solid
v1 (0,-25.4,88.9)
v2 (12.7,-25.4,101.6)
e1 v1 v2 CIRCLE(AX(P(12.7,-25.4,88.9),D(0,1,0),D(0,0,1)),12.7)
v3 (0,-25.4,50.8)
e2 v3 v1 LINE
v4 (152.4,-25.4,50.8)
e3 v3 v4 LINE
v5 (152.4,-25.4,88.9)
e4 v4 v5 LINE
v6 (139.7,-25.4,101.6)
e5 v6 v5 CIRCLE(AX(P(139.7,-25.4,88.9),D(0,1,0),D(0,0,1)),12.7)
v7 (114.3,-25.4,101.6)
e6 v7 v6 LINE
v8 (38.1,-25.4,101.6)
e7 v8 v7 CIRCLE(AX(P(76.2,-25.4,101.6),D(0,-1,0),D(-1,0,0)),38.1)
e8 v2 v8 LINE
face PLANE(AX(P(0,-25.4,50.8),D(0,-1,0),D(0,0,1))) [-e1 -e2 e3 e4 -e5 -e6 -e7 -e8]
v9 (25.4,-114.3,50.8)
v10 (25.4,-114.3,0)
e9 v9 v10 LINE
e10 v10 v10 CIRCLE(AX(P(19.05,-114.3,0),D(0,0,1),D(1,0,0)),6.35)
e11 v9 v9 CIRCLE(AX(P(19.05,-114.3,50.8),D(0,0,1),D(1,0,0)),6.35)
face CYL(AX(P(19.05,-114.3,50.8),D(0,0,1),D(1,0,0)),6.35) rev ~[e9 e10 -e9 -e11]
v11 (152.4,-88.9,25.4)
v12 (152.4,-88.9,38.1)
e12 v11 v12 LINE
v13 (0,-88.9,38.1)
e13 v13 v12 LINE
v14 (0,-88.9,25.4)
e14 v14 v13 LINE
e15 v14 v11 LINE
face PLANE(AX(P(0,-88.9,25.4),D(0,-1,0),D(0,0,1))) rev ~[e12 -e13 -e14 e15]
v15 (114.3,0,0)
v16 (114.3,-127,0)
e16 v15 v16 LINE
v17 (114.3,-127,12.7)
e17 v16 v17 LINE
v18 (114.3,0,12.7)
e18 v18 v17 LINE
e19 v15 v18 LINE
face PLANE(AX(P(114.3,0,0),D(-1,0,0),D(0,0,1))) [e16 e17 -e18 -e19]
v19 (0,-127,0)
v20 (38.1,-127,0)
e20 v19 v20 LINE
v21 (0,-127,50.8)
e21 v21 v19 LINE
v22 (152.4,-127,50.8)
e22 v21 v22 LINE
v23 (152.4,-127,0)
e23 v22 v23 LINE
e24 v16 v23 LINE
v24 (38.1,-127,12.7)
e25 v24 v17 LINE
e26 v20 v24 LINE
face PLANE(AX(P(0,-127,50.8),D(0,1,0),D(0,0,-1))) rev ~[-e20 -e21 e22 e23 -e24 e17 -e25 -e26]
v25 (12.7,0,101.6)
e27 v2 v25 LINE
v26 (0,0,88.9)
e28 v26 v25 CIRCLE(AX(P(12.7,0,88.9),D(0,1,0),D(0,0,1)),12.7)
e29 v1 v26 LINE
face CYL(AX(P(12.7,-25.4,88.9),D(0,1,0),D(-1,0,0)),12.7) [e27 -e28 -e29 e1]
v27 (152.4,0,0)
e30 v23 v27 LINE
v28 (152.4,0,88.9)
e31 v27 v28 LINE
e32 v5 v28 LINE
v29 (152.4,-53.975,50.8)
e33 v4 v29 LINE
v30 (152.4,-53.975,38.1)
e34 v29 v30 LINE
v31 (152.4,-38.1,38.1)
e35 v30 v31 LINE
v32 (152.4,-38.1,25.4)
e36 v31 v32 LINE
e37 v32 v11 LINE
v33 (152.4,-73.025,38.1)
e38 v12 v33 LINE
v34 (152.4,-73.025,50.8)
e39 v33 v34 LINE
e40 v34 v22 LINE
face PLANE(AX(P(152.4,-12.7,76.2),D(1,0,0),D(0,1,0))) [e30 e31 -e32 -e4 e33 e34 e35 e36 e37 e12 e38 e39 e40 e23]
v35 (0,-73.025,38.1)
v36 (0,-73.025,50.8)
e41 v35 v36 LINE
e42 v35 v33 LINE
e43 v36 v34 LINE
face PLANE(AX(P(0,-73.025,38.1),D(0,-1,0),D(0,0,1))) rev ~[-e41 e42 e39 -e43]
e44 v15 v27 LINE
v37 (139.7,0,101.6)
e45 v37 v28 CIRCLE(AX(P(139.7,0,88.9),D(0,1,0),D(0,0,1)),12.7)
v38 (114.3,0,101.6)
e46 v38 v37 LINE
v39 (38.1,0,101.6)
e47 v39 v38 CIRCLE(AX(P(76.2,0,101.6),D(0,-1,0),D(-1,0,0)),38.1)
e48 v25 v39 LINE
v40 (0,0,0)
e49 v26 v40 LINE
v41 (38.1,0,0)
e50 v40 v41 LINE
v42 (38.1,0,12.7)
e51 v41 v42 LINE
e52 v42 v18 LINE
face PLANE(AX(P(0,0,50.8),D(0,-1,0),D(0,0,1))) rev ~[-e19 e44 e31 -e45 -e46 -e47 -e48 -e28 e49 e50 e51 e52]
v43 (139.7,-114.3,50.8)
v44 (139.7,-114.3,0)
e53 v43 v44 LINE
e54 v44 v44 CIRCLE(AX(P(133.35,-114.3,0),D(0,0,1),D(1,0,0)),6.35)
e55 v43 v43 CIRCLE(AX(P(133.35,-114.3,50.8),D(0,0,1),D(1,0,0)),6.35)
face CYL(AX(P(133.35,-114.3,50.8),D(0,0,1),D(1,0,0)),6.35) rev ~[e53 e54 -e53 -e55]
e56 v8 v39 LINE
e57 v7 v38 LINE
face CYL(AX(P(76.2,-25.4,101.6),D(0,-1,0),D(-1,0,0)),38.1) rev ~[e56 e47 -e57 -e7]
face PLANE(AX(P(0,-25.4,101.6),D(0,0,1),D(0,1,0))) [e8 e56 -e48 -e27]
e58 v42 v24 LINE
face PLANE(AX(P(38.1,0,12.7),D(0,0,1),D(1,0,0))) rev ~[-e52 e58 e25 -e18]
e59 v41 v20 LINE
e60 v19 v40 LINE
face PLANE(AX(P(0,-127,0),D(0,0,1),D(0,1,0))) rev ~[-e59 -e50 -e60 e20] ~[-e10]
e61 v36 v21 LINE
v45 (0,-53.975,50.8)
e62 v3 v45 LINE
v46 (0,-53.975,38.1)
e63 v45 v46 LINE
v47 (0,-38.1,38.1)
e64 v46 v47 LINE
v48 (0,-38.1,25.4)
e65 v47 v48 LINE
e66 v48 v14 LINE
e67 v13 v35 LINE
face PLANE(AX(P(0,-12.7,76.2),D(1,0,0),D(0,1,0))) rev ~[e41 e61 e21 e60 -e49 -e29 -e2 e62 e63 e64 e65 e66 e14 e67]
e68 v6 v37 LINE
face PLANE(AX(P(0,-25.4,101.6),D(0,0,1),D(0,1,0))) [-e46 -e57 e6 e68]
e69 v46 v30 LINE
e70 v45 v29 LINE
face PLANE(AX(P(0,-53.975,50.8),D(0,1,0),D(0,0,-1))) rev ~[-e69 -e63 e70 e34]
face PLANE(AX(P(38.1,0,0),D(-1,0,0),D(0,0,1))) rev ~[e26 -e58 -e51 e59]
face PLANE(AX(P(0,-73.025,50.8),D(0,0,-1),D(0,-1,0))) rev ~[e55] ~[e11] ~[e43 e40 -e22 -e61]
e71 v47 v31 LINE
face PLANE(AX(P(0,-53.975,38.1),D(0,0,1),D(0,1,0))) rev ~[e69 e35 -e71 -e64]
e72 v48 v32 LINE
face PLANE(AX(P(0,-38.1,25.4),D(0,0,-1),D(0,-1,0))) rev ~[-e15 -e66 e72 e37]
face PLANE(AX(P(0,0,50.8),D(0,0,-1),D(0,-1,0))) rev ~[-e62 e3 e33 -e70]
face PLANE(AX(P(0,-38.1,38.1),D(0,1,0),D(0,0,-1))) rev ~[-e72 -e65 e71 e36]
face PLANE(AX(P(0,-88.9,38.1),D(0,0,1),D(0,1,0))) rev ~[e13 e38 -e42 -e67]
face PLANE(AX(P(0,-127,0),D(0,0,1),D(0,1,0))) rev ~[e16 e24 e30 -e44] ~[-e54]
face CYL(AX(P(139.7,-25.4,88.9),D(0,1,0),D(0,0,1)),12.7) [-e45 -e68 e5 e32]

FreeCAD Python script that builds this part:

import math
import FreeCAD as App
import Part
import Sketcher

V = App.Vector
Q = App.Units.Quantity


def edges_at(feature, points):
    """Names of the edges that pass closest to the given points."""
    edges = feature.Shape.Edges
    near = lambda p: min(range(len(edges)), key=lambda i: edges[i].distToShape(Part.Vertex(*p))[0])
    return sorted({f"Edge{near(p) + 1}" for p in points})

doc = App.newDocument("Part")
body = doc.addObject("PartDesign::Body", "Body")

# Sketch on YZ plane
sketch1 = body.newObject("Sketcher::SketchObject", "Sketch")
sketch1.AttachmentSupport = (doc.getObject("YZ_Plane"), [""])
sketch1.MapMode = "FlatFace"
sketch1.addGeometry(Part.LineSegment(V(-127, 0, 0), V(0, 0, 0)), False)
sketch1.addGeometry(Part.LineSegment(V(0, 0, 0), V(0, 51, 0)), False)
sketch1.addGeometry(Part.LineSegment(V(0, 51, 0), V(-54, 51, 0)), False)
sketch1.addGeometry(Part.LineSegment(V(-54, 51, 0), V(-54, 38, 0)), False)
sketch1.addGeometry(Part.LineSegment(V(-54, 38, 0), V(-38, 38, 0)), False)
sketch1.addGeometry(Part.LineSegment(V(-38, 38, 0), V(-38, 25, 0)), False)
sketch1.addGeometry(Part.LineSegment(V(-38, 25, 0), V(-89, 25, 0)), False)
sketch1.addGeometry(Part.LineSegment(V(-89, 25, 0), V(-89, 38, 0)), False)
sketch1.addGeometry(Part.LineSegment(V(-89, 38, 0), V(-73, 38, 0)), False)
sketch1.addGeometry(Part.LineSegment(V(-73, 38, 0), V(-73, 51, 0)), False)
sketch1.addGeometry(Part.LineSegment(V(-73, 51, 0), V(-127, 51, 0)), False)
sketch1.addGeometry(Part.LineSegment(V(-127, 51, 0), V(-127, 0, 0)), False)
sketch1.addConstraint(Sketcher.Constraint("Coincident", 0, 2, 1, 1))
sketch1.addConstraint(Sketcher.Constraint("Coincident", 1, 2, 2, 1))
sketch1.addConstraint(Sketcher.Constraint("Coincident", 2, 2, 3, 1))
sketch1.addConstraint(Sketcher.Constraint("Coincident", 3, 2, 4, 1))
sketch1.addConstraint(Sketcher.Constraint("Coincident", 4, 2, 5, 1))
sketch1.addConstraint(Sketcher.Constraint("Coincident", 5, 2, 6, 1))
sketch1.addConstraint(Sketcher.Constraint("Coincident", 6, 2, 7, 1))
sketch1.addConstraint(Sketcher.Constraint("Coincident", 7, 2, 8, 1))
sketch1.addConstraint(Sketcher.Constraint("Coincident", 8, 2, 9, 1))
sketch1.addConstraint(Sketcher.Constraint("Coincident", 9, 2, 10, 1))
sketch1.addConstraint(Sketcher.Constraint("Coincident", 10, 2, 11, 1))
sketch1.addConstraint(Sketcher.Constraint("Coincident", 11, 2, 0, 1))
sketch1.addConstraint(Sketcher.Constraint("Horizontal", 0))
sketch1.addConstraint(Sketcher.Constraint("Vertical", 1))
sketch1.addConstraint(Sketcher.Constraint("Horizontal", 2))
sketch1.addConstraint(Sketcher.Constraint("Vertical", 3))
sketch1.addConstraint(Sketcher.Constraint("Horizontal", 4))
sketch1.addConstraint(Sketcher.Constraint("Vertical", 5))
sketch1.addConstraint(Sketcher.Constraint("Horizontal", 6))
sketch1.addConstraint(Sketcher.Constraint("Vertical", 7))
sketch1.addConstraint(Sketcher.Constraint("Horizontal", 8))
sketch1.addConstraint(Sketcher.Constraint("Vertical", 9))
sketch1.addConstraint(Sketcher.Constraint("Horizontal", 10))
sketch1.addConstraint(Sketcher.Constraint("Vertical", 11))
sketch1.addConstraint(Sketcher.Constraint("Coincident", 0, 2, -1, 1))
sketch1.addConstraint(Sketcher.Constraint("Horizontal", 4, 2, 7, 2))
sketch1.addConstraint(Sketcher.Constraint("Horizontal", 2, 2, 9, 2))
sketch1.addConstraint(Sketcher.Constraint("Equal", 4, 8))
sketch1.addConstraint(Sketcher.Constraint("Equal", 2, 10))
sketch1.addConstraint(Sketcher.Constraint("Equal", 6, 1))
sketch1.addConstraint(Sketcher.Constraint("Equal", 3, 5))
sketch1.addConstraint(Sketcher.Constraint("DistanceX", 0, 1, 0, 2, Q("5 in")))
sketch1.addConstraint(Sketcher.Constraint("DistanceX", 6, 2, 6, 1, Q("2 in")))
sketch1.addConstraint(Sketcher.Constraint("DistanceY", 3, 2, 3, 1, Q("0.5 in")))
sketch1.addConstraint(Sketcher.Constraint("DistanceX", 2, 2, 2, 1, Q("2.125 in")))
pad1 = body.newObject("PartDesign::Pad", "Pad")
pad1.Profile = sketch1
pad1.Length = Q("6 in")

# Sketch on YZ plane
sketch2 = body.newObject("Sketcher::SketchObject", "Sketch001")
sketch2.AttachmentSupport = (doc.getObject("YZ_Plane"), [""])
sketch2.MapMode = "FlatFace"
sketch2.addGeometry(Part.LineSegment(V(-25, 102, 0), V(-25, 51, 0)), False)
sketch2.addGeometry(Part.LineSegment(V(-25, 51, 0), V(0, 51, 0)), False)
sketch2.addGeometry(Part.LineSegment(V(0, 51, 0), V(0, 102, 0)), False)
sketch2.addGeometry(Part.LineSegment(V(0, 102, 0), V(-25, 102, 0)), False)
sketch2.addConstraint(Sketcher.Constraint("Coincident", 0, 2, 1, 1))
sketch2.addConstraint(Sketcher.Constraint("Coincident", 1, 2, 2, 1))
sketch2.addConstraint(Sketcher.Constraint("Coincident", 2, 2, 3, 1))
sketch2.addConstraint(Sketcher.Constraint("Coincident", 3, 2, 0, 1))
sketch2.addConstraint(Sketcher.Constraint("Vertical", 0))
sketch2.addConstraint(Sketcher.Constraint("Horizontal", 1))
sketch2.addConstraint(Sketcher.Constraint("Vertical", 2))
sketch2.addConstraint(Sketcher.Constraint("Horizontal", 3))
sketch2.addConstraint(Sketcher.Constraint("PointOnObject", 1, 2, -2))
sketch2.addConstraint(Sketcher.Constraint("DistanceX", 1, 1, 1, 2, Q("1 in")))
sketch2.addConstraint(Sketcher.Constraint("DistanceY", 0, 2, 0, 1, Q("2 in")))
sketch2.addConstraint(Sketcher.Constraint("DistanceY", -1, 1, 0, 2, Q("2 in")))
pad2 = body.newObject("PartDesign::Pad", "Pad001")
pad2.Profile = sketch2
pad2.Length = Q("6 in")
doc.recompute()

fillet = body.newObject("PartDesign::Fillet", "Fillet")
fillet.Base = (pad2, edges_at(pad2, [(0, -12.7, 101.6)]))
fillet.Radius = Q("0.5 in")
doc.recompute()

fillet2 = body.newObject("PartDesign::Fillet", "Fillet001")
fillet2.Base = (fillet, edges_at(fillet, [(152.4, -12.7, 101.6)]))
fillet2.Radius = Q("0.5 in")

# Sketch on XZ plane
sketch3 = body.newObject("Sketcher::SketchObject", "Sketch002")
sketch3.AttachmentSupport = (doc.getObject("XZ_Plane"), [""])
sketch3.MapMode = "FlatFace"
sketch3.addGeometry(Part.LineSegment(V(38, 13, 0), V(38, 0, 0)), False)
sketch3.addGeometry(Part.LineSegment(V(38, 0, 0), V(114, 0, 0)), False)
sketch3.addGeometry(Part.LineSegment(V(114, 0, 0), V(114, 13, 0)), False)
sketch3.addGeometry(Part.LineSegment(V(114, 13, 0), V(38, 13, 0)), False)
sketch3.addConstraint(Sketcher.Constraint("Coincident", 0, 2, 1, 1))
sketch3.addConstraint(Sketcher.Constraint("Coincident", 1, 2, 2, 1))
sketch3.addConstraint(Sketcher.Constraint("Coincident", 2, 2, 3, 1))
sketch3.addConstraint(Sketcher.Constraint("Coincident", 3, 2, 0, 1))
sketch3.addConstraint(Sketcher.Constraint("Vertical", 0))
sketch3.addConstraint(Sketcher.Constraint("Horizontal", 1))
sketch3.addConstraint(Sketcher.Constraint("Vertical", 2))
sketch3.addConstraint(Sketcher.Constraint("Horizontal", 3))
sketch3.addConstraint(Sketcher.Constraint("PointOnObject", 0, 2, -1))
sketch3.addConstraint(Sketcher.Constraint("DistanceX", 1, 1, 1, 2, Q("3 in")))
sketch3.addConstraint(Sketcher.Constraint("DistanceY", 0, 2, 0, 1, Q("0.5 in")))
sketch3.addConstraint(Sketcher.Constraint("DistanceX", -1, 1, 0, 2, Q("1.5 in")))
pocket1 = body.newObject("PartDesign::Pocket", "Pocket")
pocket1.Profile = sketch3
pocket1.Type = "ThroughAll"
pocket1.Reversed = True

# Sketch on XZ plane
sketch4 = body.newObject("Sketcher::SketchObject", "Sketch003")
sketch4.AttachmentSupport = (doc.getObject("XZ_Plane"), [""])
sketch4.MapMode = "FlatFace"
sketch4.AttachmentOffset = App.Placement(V(0, 0, 1 * 25.4), App.Rotation())
sketch4.addGeometry(Part.ArcOfCircle(Part.Circle(V(76, 102, 0), V(0, 0, 1), 38), math.radians(180), math.radians(360)), False)
sketch4.addGeometry(Part.LineSegment(V(114, 102, 0), V(38, 102, 0)), False)
sketch4.addConstraint(Sketcher.Constraint("Coincident", 0, 1, 1, 2))
sketch4.addConstraint(Sketcher.Constraint("Coincident", 1, 1, 0, 2))
sketch4.addConstraint(Sketcher.Constraint("Horizontal", 1))
sketch4.addConstraint(Sketcher.Constraint("Radius", 0, Q("1.5 in")))
sketch4.addConstraint(Sketcher.Constraint("DistanceX", -1, 1, 0, 3, Q("3 in")))
sketch4.addConstraint(Sketcher.Constraint("DistanceY", -1, 1, 0, 3, Q("4 in")))
sketch4.addConstraint(Sketcher.Constraint("DistanceY", -1, 1, 0, 1, Q("4 in")))
pocket2 = body.newObject("PartDesign::Pocket", "Pocket001")
pocket2.Profile = sketch4
pocket2.Length = Q("6 in")

# Sketch on XY plane
sketch5 = body.newObject("Sketcher::SketchObject", "Sketch004")
sketch5.AttachmentSupport = (doc.getObject("XY_Plane"), [""])
sketch5.MapMode = "FlatFace"
sketch5.AttachmentOffset = App.Placement(V(0, 0, 2 * 25.4), App.Rotation())
sketch5.addGeometry(Part.Circle(V(19, -114, 0), V(0, 0, 1), 6), False)
sketch5.addGeometry(Part.Circle(V(133, -114, 0), V(0, 0, 1), 6), False)
sketch5.addConstraint(Sketcher.Constraint("Equal", 0, 1))
sketch5.addConstraint(Sketcher.Constraint("Horizontal", 0, 3, 1, 3))
sketch5.addConstraint(Sketcher.Constraint("Diameter", 0, Q("0.5 in")))
sketch5.addConstraint(Sketcher.Constraint("DistanceY", 0, 3, -1, 1, Q("4.5 in")))
sketch5.addConstraint(Sketcher.Constraint("DistanceX", 0, 3, 1, 3, Q("4.5 in")))
sketch5.addConstraint(Sketcher.Constraint("DistanceX", -1, 1, 0, 3, Q("0.75 in")))
pocket3 = body.newObject("PartDesign::Pocket", "Pocket002")
pocket3.Profile = sketch5
pocket3.Length = Q("6 in")

doc.recompute()
